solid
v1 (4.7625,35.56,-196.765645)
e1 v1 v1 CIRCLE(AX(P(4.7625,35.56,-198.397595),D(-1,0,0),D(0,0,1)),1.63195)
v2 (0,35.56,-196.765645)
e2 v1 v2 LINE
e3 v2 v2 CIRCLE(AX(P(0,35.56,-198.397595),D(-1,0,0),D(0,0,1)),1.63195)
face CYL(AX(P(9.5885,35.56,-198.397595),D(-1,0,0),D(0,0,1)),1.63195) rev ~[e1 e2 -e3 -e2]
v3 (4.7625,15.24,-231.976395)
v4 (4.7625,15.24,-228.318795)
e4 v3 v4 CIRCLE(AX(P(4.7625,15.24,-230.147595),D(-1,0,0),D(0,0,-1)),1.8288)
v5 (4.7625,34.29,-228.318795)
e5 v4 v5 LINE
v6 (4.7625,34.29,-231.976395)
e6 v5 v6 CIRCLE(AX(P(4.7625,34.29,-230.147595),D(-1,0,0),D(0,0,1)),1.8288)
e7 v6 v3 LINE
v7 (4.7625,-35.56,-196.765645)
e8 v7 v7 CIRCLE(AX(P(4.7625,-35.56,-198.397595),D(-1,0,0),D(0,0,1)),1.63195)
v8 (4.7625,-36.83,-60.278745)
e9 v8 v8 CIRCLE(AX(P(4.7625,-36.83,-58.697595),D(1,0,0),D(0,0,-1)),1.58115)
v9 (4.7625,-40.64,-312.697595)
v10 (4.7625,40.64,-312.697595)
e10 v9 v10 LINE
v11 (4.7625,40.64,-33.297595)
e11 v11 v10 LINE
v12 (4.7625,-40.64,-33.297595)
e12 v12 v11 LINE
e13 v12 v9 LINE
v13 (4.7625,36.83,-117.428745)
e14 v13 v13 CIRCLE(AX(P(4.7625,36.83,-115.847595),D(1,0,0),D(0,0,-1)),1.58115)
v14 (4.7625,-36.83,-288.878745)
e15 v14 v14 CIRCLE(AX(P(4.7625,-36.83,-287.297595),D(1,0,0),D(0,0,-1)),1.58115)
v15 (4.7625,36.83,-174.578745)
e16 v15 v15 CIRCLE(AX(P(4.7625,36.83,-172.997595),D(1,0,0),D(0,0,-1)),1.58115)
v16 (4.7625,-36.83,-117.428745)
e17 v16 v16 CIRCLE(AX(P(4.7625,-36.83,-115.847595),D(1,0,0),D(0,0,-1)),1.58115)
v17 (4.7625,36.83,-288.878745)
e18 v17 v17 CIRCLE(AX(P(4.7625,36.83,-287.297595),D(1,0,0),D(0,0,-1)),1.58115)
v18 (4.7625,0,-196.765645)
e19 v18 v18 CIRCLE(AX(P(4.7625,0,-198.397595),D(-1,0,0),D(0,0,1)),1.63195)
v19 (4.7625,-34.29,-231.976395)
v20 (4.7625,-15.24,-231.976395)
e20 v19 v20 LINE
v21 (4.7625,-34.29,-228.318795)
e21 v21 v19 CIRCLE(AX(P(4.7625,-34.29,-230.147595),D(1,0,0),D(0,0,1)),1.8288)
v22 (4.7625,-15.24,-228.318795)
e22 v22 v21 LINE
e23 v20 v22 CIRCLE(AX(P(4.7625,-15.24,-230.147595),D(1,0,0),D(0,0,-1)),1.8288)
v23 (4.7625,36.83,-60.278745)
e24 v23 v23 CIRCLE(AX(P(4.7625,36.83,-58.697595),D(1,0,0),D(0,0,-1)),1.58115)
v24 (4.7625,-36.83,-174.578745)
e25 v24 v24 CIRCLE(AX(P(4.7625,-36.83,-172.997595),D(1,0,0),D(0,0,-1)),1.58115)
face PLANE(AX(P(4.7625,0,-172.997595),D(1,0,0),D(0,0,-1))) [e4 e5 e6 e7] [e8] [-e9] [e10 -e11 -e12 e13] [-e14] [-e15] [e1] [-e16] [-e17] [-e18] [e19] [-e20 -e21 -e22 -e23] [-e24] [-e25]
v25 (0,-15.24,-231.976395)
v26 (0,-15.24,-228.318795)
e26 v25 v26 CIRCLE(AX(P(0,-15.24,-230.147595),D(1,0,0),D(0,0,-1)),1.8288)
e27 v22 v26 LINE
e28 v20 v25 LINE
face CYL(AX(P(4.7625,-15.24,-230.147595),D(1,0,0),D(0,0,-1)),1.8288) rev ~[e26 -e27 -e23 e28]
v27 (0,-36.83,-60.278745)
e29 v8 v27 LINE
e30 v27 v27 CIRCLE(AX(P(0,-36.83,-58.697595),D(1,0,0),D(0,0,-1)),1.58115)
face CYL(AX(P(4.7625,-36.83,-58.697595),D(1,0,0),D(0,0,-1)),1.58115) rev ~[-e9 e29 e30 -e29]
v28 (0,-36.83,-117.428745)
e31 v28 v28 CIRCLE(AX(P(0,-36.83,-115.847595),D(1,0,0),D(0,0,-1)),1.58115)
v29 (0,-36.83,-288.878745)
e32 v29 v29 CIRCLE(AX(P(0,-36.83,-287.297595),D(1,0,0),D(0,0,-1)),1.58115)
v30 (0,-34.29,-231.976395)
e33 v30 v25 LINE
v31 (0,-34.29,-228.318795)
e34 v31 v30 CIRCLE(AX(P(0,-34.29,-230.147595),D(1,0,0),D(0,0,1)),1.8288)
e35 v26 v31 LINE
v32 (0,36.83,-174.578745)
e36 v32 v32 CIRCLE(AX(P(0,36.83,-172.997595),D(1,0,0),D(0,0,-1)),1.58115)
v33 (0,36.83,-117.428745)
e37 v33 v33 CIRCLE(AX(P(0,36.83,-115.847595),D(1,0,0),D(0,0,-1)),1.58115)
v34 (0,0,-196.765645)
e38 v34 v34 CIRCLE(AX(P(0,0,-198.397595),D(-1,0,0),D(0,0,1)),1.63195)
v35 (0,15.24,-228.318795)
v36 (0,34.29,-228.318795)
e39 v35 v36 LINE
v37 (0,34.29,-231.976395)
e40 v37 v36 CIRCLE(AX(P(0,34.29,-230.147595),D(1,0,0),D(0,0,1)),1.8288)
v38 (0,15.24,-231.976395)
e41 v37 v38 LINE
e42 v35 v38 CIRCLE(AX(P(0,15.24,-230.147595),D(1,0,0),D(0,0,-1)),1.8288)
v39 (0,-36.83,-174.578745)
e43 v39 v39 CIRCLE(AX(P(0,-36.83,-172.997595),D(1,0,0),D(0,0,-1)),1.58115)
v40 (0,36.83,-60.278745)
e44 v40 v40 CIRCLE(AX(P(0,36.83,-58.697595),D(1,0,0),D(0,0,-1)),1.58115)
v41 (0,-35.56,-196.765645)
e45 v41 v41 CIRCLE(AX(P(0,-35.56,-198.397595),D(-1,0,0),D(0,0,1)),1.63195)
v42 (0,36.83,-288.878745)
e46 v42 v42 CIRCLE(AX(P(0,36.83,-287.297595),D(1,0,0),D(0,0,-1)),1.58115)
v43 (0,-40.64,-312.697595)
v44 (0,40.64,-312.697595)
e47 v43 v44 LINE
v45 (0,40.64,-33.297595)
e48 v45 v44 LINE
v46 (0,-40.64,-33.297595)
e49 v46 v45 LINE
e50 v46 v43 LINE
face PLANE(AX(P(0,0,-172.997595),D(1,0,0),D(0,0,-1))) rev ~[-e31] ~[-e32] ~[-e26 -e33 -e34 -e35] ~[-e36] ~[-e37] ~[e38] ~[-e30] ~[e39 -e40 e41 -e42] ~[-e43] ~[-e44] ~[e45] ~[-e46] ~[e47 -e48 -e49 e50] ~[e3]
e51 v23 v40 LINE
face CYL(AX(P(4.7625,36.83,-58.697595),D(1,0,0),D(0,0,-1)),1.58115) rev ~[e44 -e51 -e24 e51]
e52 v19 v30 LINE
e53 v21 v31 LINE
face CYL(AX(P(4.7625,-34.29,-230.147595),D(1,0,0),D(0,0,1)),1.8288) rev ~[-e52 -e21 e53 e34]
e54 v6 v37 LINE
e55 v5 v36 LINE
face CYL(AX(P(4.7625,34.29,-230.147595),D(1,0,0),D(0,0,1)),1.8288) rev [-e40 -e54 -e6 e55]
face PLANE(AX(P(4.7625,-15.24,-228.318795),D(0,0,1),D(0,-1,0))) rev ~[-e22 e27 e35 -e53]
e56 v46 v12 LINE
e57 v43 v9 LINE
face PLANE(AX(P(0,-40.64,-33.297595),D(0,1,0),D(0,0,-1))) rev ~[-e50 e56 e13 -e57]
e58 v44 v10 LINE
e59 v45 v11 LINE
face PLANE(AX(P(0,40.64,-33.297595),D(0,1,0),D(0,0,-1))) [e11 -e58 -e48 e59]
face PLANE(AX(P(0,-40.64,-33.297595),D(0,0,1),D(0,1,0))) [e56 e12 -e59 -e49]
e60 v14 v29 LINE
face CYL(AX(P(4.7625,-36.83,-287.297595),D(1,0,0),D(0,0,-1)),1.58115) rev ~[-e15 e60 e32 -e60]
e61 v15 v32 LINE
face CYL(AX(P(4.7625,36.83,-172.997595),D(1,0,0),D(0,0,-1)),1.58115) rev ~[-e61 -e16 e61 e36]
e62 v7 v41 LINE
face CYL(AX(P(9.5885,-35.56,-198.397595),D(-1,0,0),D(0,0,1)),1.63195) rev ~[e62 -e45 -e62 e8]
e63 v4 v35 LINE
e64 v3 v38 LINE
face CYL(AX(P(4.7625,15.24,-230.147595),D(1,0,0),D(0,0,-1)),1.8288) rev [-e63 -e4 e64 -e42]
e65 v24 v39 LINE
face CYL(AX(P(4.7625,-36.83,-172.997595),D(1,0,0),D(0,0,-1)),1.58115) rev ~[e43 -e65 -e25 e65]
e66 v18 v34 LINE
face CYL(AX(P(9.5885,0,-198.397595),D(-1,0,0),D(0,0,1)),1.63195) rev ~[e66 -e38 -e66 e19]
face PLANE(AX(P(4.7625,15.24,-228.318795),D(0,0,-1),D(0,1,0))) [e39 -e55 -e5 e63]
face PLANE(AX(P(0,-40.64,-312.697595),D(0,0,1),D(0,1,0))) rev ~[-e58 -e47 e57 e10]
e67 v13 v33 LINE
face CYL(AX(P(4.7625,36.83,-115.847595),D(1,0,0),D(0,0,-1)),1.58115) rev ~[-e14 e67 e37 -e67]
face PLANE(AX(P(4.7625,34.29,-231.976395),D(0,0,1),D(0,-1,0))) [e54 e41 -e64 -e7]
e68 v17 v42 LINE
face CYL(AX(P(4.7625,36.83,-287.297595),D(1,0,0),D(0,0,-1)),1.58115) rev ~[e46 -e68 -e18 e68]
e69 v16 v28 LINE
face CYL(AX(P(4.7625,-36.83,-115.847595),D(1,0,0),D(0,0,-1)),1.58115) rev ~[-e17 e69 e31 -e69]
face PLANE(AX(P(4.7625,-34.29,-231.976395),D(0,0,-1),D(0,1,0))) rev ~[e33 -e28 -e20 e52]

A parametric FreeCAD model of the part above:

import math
import FreeCAD as App
import Part
import Sketcher

V = App.Vector
Q = App.Units.Quantity

doc = App.newDocument("Part")
body = doc.addObject("PartDesign::Body", "Body")

sketch1 = doc.addObject("Sketcher::SketchObject", "Sketch")
body.addObject(sketch1)
sketch1.AttachmentSupport = (doc.YZ_Plane, [""])
sketch1.MapMode = "FlatFace"
sketch1.addGeometry([
    Part.LineSegment(V(41, -33, 0), V(-41, -33, 0)),
    Part.LineSegment(V(-41, -33, 0), V(-41, -313, 0)),
    Part.LineSegment(V(-41, -313, 0), V(41, -313, 0)),
    Part.LineSegment(V(41, -313, 0), V(41, -33, 0)),
], False)
sketch1.addConstraint([
    Sketcher.Constraint("Coincident", 0, 2, 1, 1),
    Sketcher.Constraint("Coincident", 1, 2, 2, 1),
    Sketcher.Constraint("Coincident", 2, 2, 3, 1),
    Sketcher.Constraint("Coincident", 3, 2, 0, 1),
    Sketcher.Constraint("Horizontal", 0),
    Sketcher.Constraint("Vertical", 1),
    Sketcher.Constraint("Horizontal", 2),
    Sketcher.Constraint("Vertical", 3),
    Sketcher.Constraint("DistanceY", 1, 2, 1, 1, Q("11 in")),
    Sketcher.Constraint("DistanceX", 0, 2, 0, 1, Q("3.2 in")),
    Sketcher.Constraint("DistanceX", 0, 2, -1, 1, Q("1.6 in")),
    Sketcher.Constraint("DistanceY", 0, 2, -1, 1, Q("33.297595 mm")),
])
pad1 = doc.addObject("PartDesign::Pad", "Pad")
body.addObject(pad1)
pad1.Profile = sketch1
pad1.Length = Q("0.1875 in")

sketch2 = doc.addObject("Sketcher::SketchObject", "Sketch001")
body.addObject(sketch2)
sketch2.AttachmentSupport = (doc.YZ_Plane, [""])
sketch2.MapMode = "FlatFace"
sketch2.AttachmentOffset = App.Placement(V(0, 0, 0.1875 * 25.4), App.Rotation())
sketch2.addGeometry(Part.Circle(V(10, -331, 0), V(0, 0, 1), 4.8), False)
sketch2.addConstraint([
    Sketcher.Constraint("Diameter", 0, Q("0.375 in")),
    Sketcher.Constraint("DistanceX", -1, 1, 0, 3, Q("10 mm")),
    Sketcher.Constraint("DistanceY", 0, 3, -1, 1, Q("331.004197 mm")),
])
pocket1 = doc.addObject("PartDesign::Pocket", "Pocket")
body.addObject(pocket1)
pocket1.Profile = sketch2
pocket1.Type = "ThroughAll"

sketch3 = doc.addObject("Sketcher::SketchObject", "Sketch002")
body.addObject(sketch3)
sketch3.AttachmentSupport = (doc.YZ_Plane, [""])
sketch3.MapMode = "FlatFace"
sketch3.AttachmentOffset = App.Placement(V(0, 0, 0.1875 * 25.4), App.Rotation())
sketch3.addGeometry([
    Part.Circle(V(36.8, -287.3, 0), V(0, 0, 1), 1.6),
    Part.Circle(V(36.8, -173, 0), V(0, 0, 1), 1.6),
    Part.Circle(V(36.8, -115.8, 0), V(0, 0, 1), 1.6),
    Part.Circle(V(36.8, -58.7, 0), V(0, 0, 1), 1.6),
    Part.Circle(V(-36.8, -58.7, 0), V(0, 0, 1), 1.6),
    Part.Circle(V(-36.8, -115.8, 0), V(0, 0, 1), 1.6),
    Part.Circle(V(-36.8, -173, 0), V(0, 0, 1), 1.6),
    Part.Circle(V(-36.8, -287.3, 0), V(0, 0, 1), 1.6),
    Part.LineSegment(V(15.2, -232, 0), V(34.3, -232, 0)),
    Part.ArcOfCircle(Part.Circle(V(34.3, -230.1, 0), V(0, 0, 1), 1.8), math.radians(-90), math.radians(90)),
    Part.LineSegment(V(34.3, -228.3, 0), V(15.2, -228.3, 0)),
    Part.ArcOfCircle(Part.Circle(V(15.2, -230.1, 0), V(0, 0, 1), 1.8), math.radians(90), math.radians(270)),
    Part.LineSegment(V(-34.3, -232, 0), V(-15.2, -232, 0)),
    Part.ArcOfCircle(Part.Circle(V(-15.2, -230.1, 0), V(0, 0, 1), 1.8), math.radians(-90), math.radians(90)),
    Part.LineSegment(V(-15.2, -228.3, 0), V(-34.3, -228.3, 0)),
    Part.ArcOfCircle(Part.Circle(V(-34.3, -230.1, 0), V(0, 0, 1), 1.8), math.radians(90), math.radians(270)),
], False)
sketch3.addConstraint([
    Sketcher.Constraint("Tangent", 8, 2, 9, 1),
    Sketcher.Constraint("Tangent", 9, 2, 10, 1),
    Sketcher.Constraint("Tangent", 10, 2, 11, 1),
    Sketcher.Constraint("Tangent", 11, 2, 8, 1),
    Sketcher.Constraint("Tangent", 12, 2, 13, 1),
    Sketcher.Constraint("Tangent", 13, 2, 14, 1),
    Sketcher.Constraint("Tangent", 14, 2, 15, 1),
    Sketcher.Constraint("Tangent", 15, 2, 12, 1),
    Sketcher.Constraint("Horizontal", 8),
    Sketcher.Constraint("Horizontal", 10),
    Sketcher.Constraint("Horizontal", 12),
    Sketcher.Constraint("Horizontal", 14),
    Sketcher.Constraint("Equal", 0, 1),
    Sketcher.Constraint("Equal", 1, 2),
    Sketcher.Constraint("Equal", 2, 3),
    Sketcher.Constraint("Equal", 3, 4),
    Sketcher.Constraint("Equal", 4, 5),
    Sketcher.Constraint("Equal", 5, 6),
    Sketcher.Constraint("Equal", 6, 7),
    Sketcher.Constraint("Equal", 11, 13),
    Sketcher.Constraint("Symmetric", 3, 3, 4, 3, -2),
    Sketcher.Constraint("Symmetric", 2, 3, 5, 3, -2),
    Sketcher.Constraint("Symmetric", 1, 3, 6, 3, -2),
    Sketcher.Constraint("Symmetric", 0, 3, 7, 3, -2),
    Sketcher.Constraint("Symmetric", 11, 3, 13, 3, -2),
    Sketcher.Constraint("Vertical", 0, 3, 1, 3),
    Sketcher.Constraint("Vertical", 1, 3, 2, 3),
    Sketcher.Constraint("Vertical", 2, 3, 3, 3),
    Sketcher.Constraint("Equal", 10, 12),
    Sketcher.Constraint("Radius", 9, Q("0.072 in")),
    Sketcher.Constraint("DistanceY", 0, 3, 3, 3, Q("9 in")),
    Sketcher.Constraint("Diameter", 0, Q("0.1245 in")),
    Sketcher.Constraint("DistanceX", 8, 1, 8, 2, Q("0.75 in")),
    Sketcher.Constraint("DistanceX", -1, 1, 11, 3, Q("0.6 in")),
    Sketcher.Constraint("DistanceY", 0, 3, 1, 3, Q("4.5 in")),
    Sketcher.Constraint("DistanceX", 4, 3, 3, 3, Q("2.9 in")),
    Sketcher.Constraint("DistanceY", 9, 3, 2, 3, Q("4.5 in")),
    Sketcher.Constraint("DistanceY", 1, 3, 2, 3, Q("2.25 in")),
    Sketcher.Constraint("DistanceY", 0, 3, -1, 1, Q("287.297595 mm")),
])
pocket2 = doc.addObject("PartDesign::Pocket", "Pocket001")
body.addObject(pocket2)
pocket2.Profile = sketch3
pocket2.Type = "ThroughAll"

sketch4 = doc.addObject("Sketcher::SketchObject", "Sketch003")
body.addObject(sketch4)
sketch4.AttachmentSupport = (doc.YZ_Plane, [""])
sketch4.MapMode = "FlatFace"
sketch4.AttachmentOffset = App.Placement(V(0, 0, 0.1875 * 25.4), App.Rotation())
sketch4.addGeometry([
    Part.Circle(V(35.6, -198.4, 0), V(0, 0, 1), 1.6),
    Part.Circle(V(-35.6, -198.4, 0), V(0, 0, 1), 1.6),
    Part.Circle(V(0, -198.4, 0), V(0, 0, 1), 1.6),
], False)
sketch4.addConstraint([
    Sketcher.Constraint("Equal", 0, 1),
    Sketcher.Constraint("Equal", 1, 2),
    Sketcher.Constraint("Symmetric", 0, 3, 1, 3, -2),
    Sketcher.Constraint("PointOnObject", 2, 3, -2),
    Sketcher.Constraint("Horizontal", 1, 3, 2, 3),
    Sketcher.Constraint("Diameter", 0, Q("0.1285 in")),
    Sketcher.Constraint("DistanceX", -1, 1, 0, 3, Q("1.4 in")),
    Sketcher.Constraint("DistanceY", 0, 3, -1, 1, Q("198.397595 mm")),
])
doc.recompute()
hole = doc.addObject("PartDesign::Hole", "Hole")
body.addObject(hole)
hole.Profile = sketch4
hole.ThreadType = "None"
hole.Diameter = Q("0.1285 in")
hole.DepthType = "Dimension"
hole.Depth = Q("0.19 in")
hole.DrillPoint = "Angled"
hole.DrillPointAngle = 118

doc.recompute()
